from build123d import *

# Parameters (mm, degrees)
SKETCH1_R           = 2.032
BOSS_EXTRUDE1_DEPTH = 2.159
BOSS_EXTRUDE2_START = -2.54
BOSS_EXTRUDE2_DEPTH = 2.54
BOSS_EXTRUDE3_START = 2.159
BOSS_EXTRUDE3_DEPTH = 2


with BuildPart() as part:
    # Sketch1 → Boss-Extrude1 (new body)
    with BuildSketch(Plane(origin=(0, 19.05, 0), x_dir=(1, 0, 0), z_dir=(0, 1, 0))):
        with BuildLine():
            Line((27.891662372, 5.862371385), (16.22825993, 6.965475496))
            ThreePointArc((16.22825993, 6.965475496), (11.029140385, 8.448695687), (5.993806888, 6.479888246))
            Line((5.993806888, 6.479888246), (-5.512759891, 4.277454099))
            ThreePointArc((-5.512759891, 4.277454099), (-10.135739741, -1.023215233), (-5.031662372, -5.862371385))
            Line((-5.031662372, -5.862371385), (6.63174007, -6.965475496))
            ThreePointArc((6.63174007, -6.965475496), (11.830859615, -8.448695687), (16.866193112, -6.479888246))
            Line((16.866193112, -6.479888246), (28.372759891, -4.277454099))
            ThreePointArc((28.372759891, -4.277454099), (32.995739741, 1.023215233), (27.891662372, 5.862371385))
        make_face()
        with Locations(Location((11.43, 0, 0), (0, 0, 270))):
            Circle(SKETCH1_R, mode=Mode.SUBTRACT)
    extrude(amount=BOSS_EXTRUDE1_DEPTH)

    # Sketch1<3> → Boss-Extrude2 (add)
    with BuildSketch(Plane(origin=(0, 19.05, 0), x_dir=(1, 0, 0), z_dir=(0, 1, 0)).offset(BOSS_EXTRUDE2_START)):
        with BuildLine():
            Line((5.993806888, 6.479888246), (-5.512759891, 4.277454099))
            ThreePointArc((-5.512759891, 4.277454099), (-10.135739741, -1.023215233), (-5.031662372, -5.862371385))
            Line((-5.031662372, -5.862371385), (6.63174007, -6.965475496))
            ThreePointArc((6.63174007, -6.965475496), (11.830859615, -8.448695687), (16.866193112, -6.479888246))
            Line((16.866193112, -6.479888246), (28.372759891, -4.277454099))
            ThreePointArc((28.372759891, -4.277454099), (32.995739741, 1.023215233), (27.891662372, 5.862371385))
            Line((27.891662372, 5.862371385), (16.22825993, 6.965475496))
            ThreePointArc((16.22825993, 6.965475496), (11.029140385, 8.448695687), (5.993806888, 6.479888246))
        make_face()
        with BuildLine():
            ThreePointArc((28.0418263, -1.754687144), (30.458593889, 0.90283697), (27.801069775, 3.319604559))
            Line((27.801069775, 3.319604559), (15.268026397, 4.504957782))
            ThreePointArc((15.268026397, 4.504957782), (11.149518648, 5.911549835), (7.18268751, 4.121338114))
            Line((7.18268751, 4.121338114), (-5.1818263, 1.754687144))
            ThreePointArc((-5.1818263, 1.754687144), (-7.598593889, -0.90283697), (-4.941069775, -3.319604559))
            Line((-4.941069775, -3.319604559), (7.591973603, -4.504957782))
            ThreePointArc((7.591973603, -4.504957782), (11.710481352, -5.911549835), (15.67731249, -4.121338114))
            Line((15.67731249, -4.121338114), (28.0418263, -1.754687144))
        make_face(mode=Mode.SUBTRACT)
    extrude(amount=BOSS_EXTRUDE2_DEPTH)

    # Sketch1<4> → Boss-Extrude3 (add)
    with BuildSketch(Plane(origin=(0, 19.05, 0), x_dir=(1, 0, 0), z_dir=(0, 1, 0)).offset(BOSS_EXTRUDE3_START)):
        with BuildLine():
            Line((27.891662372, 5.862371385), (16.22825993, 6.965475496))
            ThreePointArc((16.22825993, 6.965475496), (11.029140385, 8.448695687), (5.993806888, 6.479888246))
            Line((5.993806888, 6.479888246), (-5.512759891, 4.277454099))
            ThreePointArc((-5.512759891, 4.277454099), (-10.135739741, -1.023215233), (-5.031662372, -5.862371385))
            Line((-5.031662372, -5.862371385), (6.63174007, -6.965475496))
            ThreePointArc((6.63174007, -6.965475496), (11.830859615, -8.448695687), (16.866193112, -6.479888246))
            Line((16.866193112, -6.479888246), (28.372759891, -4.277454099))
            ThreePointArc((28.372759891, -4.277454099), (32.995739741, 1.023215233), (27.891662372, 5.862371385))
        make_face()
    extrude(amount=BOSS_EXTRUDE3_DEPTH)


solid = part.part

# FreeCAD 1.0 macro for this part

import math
import FreeCAD as App
import Part
import Sketcher
from FreeCAD import Vector
Q = App.Units.Quantity

doc = App.newDocument("Part")
params = doc.addObject("Spreadsheet::Sheet", "Params")
for row, (alias, value) in enumerate([
    ("sketch1_radius", "0.2 in"),
    ("sketch1_diameter", "0.16 in"),
    ("sketch1_radius2", "0.333 in"),
    ("pad1_length", "0.085 in"),
    ("sketch2_radius", "0.2 in"),
    ("sketch2_radius2", "0.1 in"),
    ("sketch2_radius3", "0.333 in"),
    ("sketch2_radius4", "0.233 in"),
    ("pad2_length", "0.1 in"),
    ("sketch3_radius", "0.2 in"),
    ("sketch3_radius2", "0.333 in"),
    ("pad3_length", "2 mm"),
], start=1):
    params.set(f"A{row}", alias)
    params.set(f"B{row}", "=" + value)
    params.setAlias(f"B{row}", alias)

body = doc.addObject("PartDesign::Body", "Body")

# Sketch on XZ plane
sketch1 = doc.addObject("Sketcher::SketchObject", "Sketch")
body.addObject(sketch1)
sketch1.AttachmentSupport = (doc.XZ_Plane, [""])
sketch1.MapMode = "FlatFace"
sketch1.AttachmentOffset = App.Placement(Vector(0, 0, -0.75 * 25.4), App.Rotation())
sketch1.addGeometry([
    Part.LineSegment(Vector(27.9, -5.9, 0), Vector(16.2, -7, 0)),  # 0
    Part.ArcOfCircle(Part.Circle(Vector(11.4, 0, 0), Vector(0, 0, 1), 8.5), math.radians(-130), math.radians(-55)),  # 1
    Part.LineSegment(Vector(6, -6.5, 0), Vector(-5.5, -4.3, 0)),  # 2
    Part.ArcOfCircle(Part.Circle(Vector(-5.1, 0.8, 0), Vector(0, 0, 1), 5.1), math.radians(90), math.radians(265)),  # 3
    Part.LineSegment(Vector(-5, 5.9, 0), Vector(6.6, 7, 0)),  # 4
    Part.ArcOfCircle(Part.Circle(Vector(11.4, 0, 0), Vector(0, 0, 1), 8.5), math.radians(50), math.radians(125)),  # 5
    Part.LineSegment(Vector(16.9, 6.5, 0), Vector(28.4, 4.3, 0)),  # 6
    Part.ArcOfCircle(Part.Circle(Vector(27.9, -0.8, 0), Vector(0, 0, 1), 5.1), math.radians(-90), math.radians(85)),  # 7
    Part.Circle(Vector(11.4, 0, 0), Vector(0, 0, 1), 2),  # 8
], False)
sketch1.addConstraint([
    Sketcher.Constraint("Coincident", 0, 2, 1, 2),
    Sketcher.Constraint("Coincident", 1, 1, 2, 1),
    Sketcher.Constraint("Coincident", 2, 2, 3, 2),
    Sketcher.Constraint("Coincident", 3, 1, 4, 1),
    Sketcher.Constraint("Coincident", 4, 2, 5, 2),
    Sketcher.Constraint("Coincident", 5, 1, 6, 1),
    Sketcher.Constraint("Coincident", 6, 2, 7, 2),
    Sketcher.Constraint("Coincident", 7, 1, 0, 1),
    Sketcher.Constraint("Coincident", 5, 3, 1, 3),
    Sketcher.Constraint("Coincident", 8, 3, 1, 3),
    Sketcher.Constraint("Equal", 1, 5),
    Sketcher.Constraint("Equal", 3, 7),
    Sketcher.Constraint("PointOnObject", 1, 3, -1),
    Sketcher.Constraint("Parallel", 0, 4),
    Sketcher.Constraint("Parallel", 2, 6),
    Sketcher.Constraint("Equal", 0, 2),
    Sketcher.Constraint("Equal", 2, 4),
    Sketcher.Constraint("Equal", 4, 6),
    Sketcher.Constraint("Radius", 3, Q("0.2 in")),
    Sketcher.Constraint("Diameter", 8, Q("0.16 in")),
    Sketcher.Constraint("Radius", 1, Q("0.333 in")),
    Sketcher.Constraint("DistanceX", -1, 1, 1, 3, Q("0.45 in")),
    Sketcher.Constraint("DistanceX", 0, 2, 6, 2, Q("12.1445 mm")),
    Sketcher.Constraint("Distance", 0, Q("11.715451 mm")),
    Sketcher.Constraint("DistanceX", 3, 3, -1, 1, Q("5.061448 mm")),
    Sketcher.Constraint("DistanceY", -1, 1, 3, 3, Q("0.782459 mm")),
    Sketcher.Constraint("DistanceX", -1, 1, 7, 3, Q("27.921448 mm")),
    Sketcher.Constraint("DistanceY", 7, 3, -1, 1, Q("0.782459 mm")),
    Sketcher.Constraint("DistanceX", -1, 1, 0, 2, Q("16.22826 mm")),
])
sketch1.setExpression("Constraints[18]", "Params.sketch1_radius")
sketch1.setExpression("Constraints[19]", "Params.sketch1_diameter")
sketch1.setExpression("Constraints[20]", "Params.sketch1_radius2")
pad1 = doc.addObject("PartDesign::Pad", "Pad")
body.addObject(pad1)
pad1.Profile = sketch1
pad1.setExpression("Length", "Params.pad1_length")
pad1.Reversed = True

# Sketch on XZ plane
sketch2 = doc.addObject("Sketcher::SketchObject", "Sketch001")
body.addObject(sketch2)
sketch2.AttachmentSupport = (doc.XZ_Plane, [""])
sketch2.MapMode = "FlatFace"
sketch2.AttachmentOffset = App.Placement(Vector(0, 0, -0.65 * 25.4), App.Rotation())
sketch2.addGeometry([
    Part.LineSegment(Vector(6, -6.5, 0), Vector(-5.5, -4.3, 0)),  # 0
    Part.ArcOfCircle(Part.Circle(Vector(-5.1, 0.8, 0), Vector(0, 0, 1), 5.1), math.radians(90), math.radians(265)),  # 1
    Part.LineSegment(Vector(-5, 5.9, 0), Vector(6.6, 7, 0)),  # 2
    Part.ArcOfCircle(Part.Circle(Vector(11.4, 0, 0), Vector(0, 0, 1), 8.5), math.radians(50), math.radians(125)),  # 3
    Part.LineSegment(Vector(16.9, 6.5, 0), Vector(28.4, 4.3, 0)),  # 4
    Part.ArcOfCircle(Part.Circle(Vector(27.9, -0.8, 0), Vector(0, 0, 1), 5.1), math.radians(-90), math.radians(85)),  # 5
    Part.LineSegment(Vector(27.9, -5.9, 0), Vector(16.2, -7, 0)),  # 6
    Part.ArcOfCircle(Part.Circle(Vector(11.4, 0, 0), Vector(0, 0, 1), 8.5), math.radians(-130), math.radians(-55)),  # 7
    Part.ArcOfCircle(Part.Circle(Vector(27.9, -0.8, 0), Vector(0, 0, 1), 2.5), math.radians(-93), math.radians(87)),  # 8
    Part.LineSegment(Vector(28, 1.8, 0), Vector(15.7, 4.1, 0)),  # 9
    Part.ArcOfCircle(Part.Circle(Vector(11.4, 0, 0), Vector(0, 0, 1), 5.9), math.radians(44), math.radians(130)),  # 10
    Part.LineSegment(Vector(7.6, 4.5, 0), Vector(-4.9, 3.3, 0)),  # 11
    Part.ArcOfCircle(Part.Circle(Vector(-5.1, 0.8, 0), Vector(0, 0, 1), 2.5), math.radians(87), math.radians(267)),  # 12
    Part.LineSegment(Vector(-5.2, -1.8, 0), Vector(7.2, -4.1, 0)),  # 13
    Part.ArcOfCircle(Part.Circle(Vector(11.4, 0, 0), Vector(0, 0, 1), 5.9), math.radians(-136), math.radians(-50)),  # 14
    Part.LineSegment(Vector(15.3, -4.5, 0), Vector(27.8, -3.3, 0)),  # 15
], False)
sketch2.addConstraint([
    Sketcher.Constraint("Coincident", 0, 2, 1, 2),
    Sketcher.Constraint("Coincident", 1, 1, 2, 1),
    Sketcher.Constraint("Coincident", 2, 2, 3, 2),
    Sketcher.Constraint("Coincident", 3, 1, 4, 1),
    Sketcher.Constraint("Coincident", 4, 2, 5, 2),
    Sketcher.Constraint("Coincident", 5, 1, 6, 1),
    Sketcher.Constraint("Coincident", 6, 2, 7, 2),
    Sketcher.Constraint("Coincident", 7, 1, 0, 1),
    Sketcher.Constraint("Coincident", 8, 2, 9, 1),
    Sketcher.Constraint("Coincident", 9, 2, 10, 1),
    Sketcher.Constraint("Coincident", 10, 2, 11, 1),
    Sketcher.Constraint("Coincident", 11, 2, 12, 1),
    Sketcher.Constraint("Coincident", 12, 2, 13, 1),
    Sketcher.Constraint("Coincident", 13, 2, 14, 1),
    Sketcher.Constraint("Coincident", 14, 2, 15, 1),
    Sketcher.Constraint("Coincident", 15, 2, 8, 1),
    Sketcher.Constraint("Coincident", 7, 3, 3, 3),
    Sketcher.Constraint("Coincident", 8, 3, 5, 3),
    Sketcher.Constraint("Coincident", 10, 3, 3, 3),
    Sketcher.Constraint("Coincident", 12, 3, 1, 3),
    Sketcher.Constraint("Coincident", 14, 3, 3, 3),
    Sketcher.Constraint("Equal", 1, 5),
    Sketcher.Constraint("Equal", 3, 7),
    Sketcher.Constraint("Equal", 8, 12),
    Sketcher.Constraint("Equal", 10, 14),
    Sketcher.Constraint("PointOnObject", 3, 3, -1),
    Sketcher.Constraint("Parallel", 0, 4),
    Sketcher.Constraint("Parallel", 2, 6),
    Sketcher.Constraint("Parallel", 4, 9),
    Sketcher.Constraint("Parallel", 6, 11),
    Sketcher.Constraint("Parallel", 9, 13),
    Sketcher.Constraint("Parallel", 11, 15),
    Sketcher.Constraint("Equal", 0, 2),
    Sketcher.Constraint("Equal", 2, 4),
    Sketcher.Constraint("Equal", 4, 6),
    Sketcher.Constraint("Equal", 9, 11),
    Sketcher.Constraint("Equal", 11, 13),
    Sketcher.Constraint("Equal", 13, 15),
    Sketcher.Constraint("Radius", 1, Q("0.2 in")),
    Sketcher.Constraint("Radius", 8, Q("0.1 in")),
    Sketcher.Constraint("Radius", 3, Q("0.333 in")),
    Sketcher.Constraint("Radius", 10, Q("0.233 in")),
    Sketcher.Constraint("DistanceX", -1, 1, 3, 3, Q("0.45 in")),
    Sketcher.Constraint("DistanceY", 8, 2, 3, 1, Q("4.725201 mm")),
    Sketcher.Constraint("Distance", 0, Q("11.715451 mm")),
    Sketcher.Constraint("DistanceX", 1, 3, -1, 1, Q("5.061448 mm")),
    Sketcher.Constraint("DistanceY", -1, 1, 1, 3, Q("0.782459 mm")),
    Sketcher.Constraint("DistanceX", -1, 1, 5, 3, Q("27.921448 mm")),
    Sketcher.Constraint("DistanceY", 5, 3, -1, 1, Q("0.782459 mm")),
    Sketcher.Constraint("DistanceX", 0, 2, -1, 1, Q("5.51276 mm")),
    Sketcher.Constraint("DistanceX", -1, 1, 2, 2, Q("6.63174 mm")),
])
sketch2.setExpression("Constraints[38]", "Params.sketch2_radius")
sketch2.setExpression("Constraints[39]", "Params.sketch2_radius2")
sketch2.setExpression("Constraints[40]", "Params.sketch2_radius3")
sketch2.setExpression("Constraints[41]", "Params.sketch2_radius4")
pad2 = doc.addObject("PartDesign::Pad", "Pad001")
body.addObject(pad2)
pad2.Profile = sketch2
pad2.setExpression("Length", "Params.pad2_length")
pad2.Reversed = True

# Sketch on XZ plane
sketch3 = doc.addObject("Sketcher::SketchObject", "Sketch002")
body.addObject(sketch3)
sketch3.AttachmentSupport = (doc.XZ_Plane, [""])
sketch3.MapMode = "FlatFace"
sketch3.AttachmentOffset = App.Placement(Vector(0, 0, -0.835 * 25.4), App.Rotation())
sketch3.addGeometry([
    Part.LineSegment(Vector(28, -6, 0), Vector(16, -7, 0)),  # 0
    Part.ArcOfCircle(Part.Circle(Vector(11, 0, 0), Vector(0, 0, 1), 8), math.radians(-130), math.radians(-55)),  # 1
    Part.LineSegment(Vector(6, -6, 0), Vector(-6, -4, 0)),  # 2
    Part.ArcOfCircle(Part.Circle(Vector(-5, 1, 0), Vector(0, 0, 1), 5), math.radians(90), math.radians(265)),  # 3
    Part.LineSegment(Vector(-5, 6, 0), Vector(7, 7, 0)),  # 4
    Part.ArcOfCircle(Part.Circle(Vector(11, 0, 0), Vector(0, 0, 1), 8), math.radians(50), math.radians(125)),  # 5
    Part.LineSegment(Vector(17, 6, 0), Vector(28, 4, 0)),  # 6
    Part.ArcOfCircle(Part.Circle(Vector(28, -1, 0), Vector(0, 0, 1), 5), math.radians(-90), math.radians(85)),  # 7
], False)
sketch3.addConstraint([
    Sketcher.Constraint("Coincident", 0, 2, 1, 2),
    Sketcher.Constraint("Coincident", 1, 1, 2, 1),
    Sketcher.Constraint("Coincident", 2, 2, 3, 2),
    Sketcher.Constraint("Coincident", 3, 1, 4, 1),
    Sketcher.Constraint("Coincident", 4, 2, 5, 2),
    Sketcher.Constraint("Coincident", 5, 1, 6, 1),
    Sketcher.Constraint("Coincident", 6, 2, 7, 2),
    Sketcher.Constraint("Coincident", 7, 1, 0, 1),
    Sketcher.Constraint("Coincident", 5, 3, 1, 3),
    Sketcher.Constraint("Equal", 1, 5),
    Sketcher.Constraint("Equal", 3, 7),
    Sketcher.Constraint("PointOnObject", 1, 3, -1),
    Sketcher.Constraint("Parallel", 0, 4),
    Sketcher.Constraint("Parallel", 2, 6),
    Sketcher.Constraint("Equal", 0, 2),
    Sketcher.Constraint("Equal", 2, 4),
    Sketcher.Constraint("Equal", 4, 6),
    Sketcher.Constraint("Radius", 3, Q("0.2 in")),
    Sketcher.Constraint("Radius", 1, Q("0.333 in")),
    Sketcher.Constraint("DistanceX", -1, 1, 1, 3, Q("0.45 in")),
    Sketcher.Constraint("DistanceX", 0, 2, 6, 2, Q("12.1445 mm")),
    Sketcher.Constraint("Distance", 0, Q("11.715451 mm")),
    Sketcher.Constraint("DistanceX", 3, 3, -1, 1, Q("5.061448 mm")),
    Sketcher.Constraint("DistanceY", -1, 1, 3, 3, Q("0.782459 mm")),
    Sketcher.Constraint("DistanceX", -1, 1, 7, 3, Q("27.921448 mm")),
    Sketcher.Constraint("DistanceY", 7, 3, -1, 1, Q("0.782459 mm")),
    Sketcher.Constraint("DistanceX", -1, 1, 0, 2, Q("16.22826 mm")),
])
sketch3.setExpression("Constraints[17]", "Params.sketch3_radius")
sketch3.setExpression("Constraints[18]", "Params.sketch3_radius2")
pad3 = doc.addObject("PartDesign::Pad", "Pad002")
body.addObject(pad3)
pad3.Profile = sketch3
pad3.setExpression("Length", "Params.pad3_length")
pad3.Reversed = True

doc.recompute()
